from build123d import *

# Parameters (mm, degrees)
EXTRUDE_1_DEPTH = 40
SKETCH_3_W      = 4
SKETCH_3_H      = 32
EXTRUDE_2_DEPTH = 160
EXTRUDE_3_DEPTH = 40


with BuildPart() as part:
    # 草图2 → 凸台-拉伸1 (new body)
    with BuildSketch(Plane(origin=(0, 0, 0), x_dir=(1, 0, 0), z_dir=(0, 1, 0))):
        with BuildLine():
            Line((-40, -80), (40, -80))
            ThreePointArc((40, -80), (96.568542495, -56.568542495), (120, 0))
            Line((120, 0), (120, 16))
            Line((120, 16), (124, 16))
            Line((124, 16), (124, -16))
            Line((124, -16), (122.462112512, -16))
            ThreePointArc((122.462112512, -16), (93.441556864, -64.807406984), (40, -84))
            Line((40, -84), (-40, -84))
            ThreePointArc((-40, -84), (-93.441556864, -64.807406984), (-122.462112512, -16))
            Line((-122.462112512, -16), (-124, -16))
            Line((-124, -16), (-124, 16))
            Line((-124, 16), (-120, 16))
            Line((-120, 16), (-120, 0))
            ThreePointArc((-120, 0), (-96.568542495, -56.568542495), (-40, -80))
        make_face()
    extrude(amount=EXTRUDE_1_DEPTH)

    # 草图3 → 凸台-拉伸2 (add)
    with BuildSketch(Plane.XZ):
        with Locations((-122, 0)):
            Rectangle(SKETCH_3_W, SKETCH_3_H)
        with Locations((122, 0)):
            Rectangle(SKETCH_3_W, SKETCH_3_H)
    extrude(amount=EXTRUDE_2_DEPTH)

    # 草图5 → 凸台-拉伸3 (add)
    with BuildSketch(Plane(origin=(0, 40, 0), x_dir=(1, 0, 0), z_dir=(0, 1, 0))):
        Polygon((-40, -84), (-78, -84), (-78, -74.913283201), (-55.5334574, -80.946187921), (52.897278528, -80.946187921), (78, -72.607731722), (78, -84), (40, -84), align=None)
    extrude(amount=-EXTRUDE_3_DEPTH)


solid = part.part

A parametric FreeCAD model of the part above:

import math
import FreeCAD as App
import Part
import Sketcher
from FreeCAD import Vector

doc = App.newDocument("Part")
body = doc.addObject("PartDesign::Body", "Body")

# Sketch on XZ plane
sketch1 = body.newObject("Sketcher::SketchObject", "Sketch")
sketch1.AttachmentSupport = (doc.getObject("XZ_Plane"), [""])
sketch1.MapMode = "FlatFace"
sketch1.addGeometry([
    Part.LineSegment(Vector(40, 80, 0), Vector(-40, 80, 0)),  # 0
    Part.ArcOfCircle(Part.Circle(Vector(-40, 0, 0), Vector(0, 0, 1), 80), math.radians(90), math.radians(180)),  # 1
    Part.LineSegment(Vector(-120, 0, 0), Vector(-120, -16, 0)),  # 2
    Part.LineSegment(Vector(-120, -16, 0), Vector(-124, -16, 0)),  # 3
    Part.LineSegment(Vector(-124, -16, 0), Vector(-124, 16, 0)),  # 4
    Part.LineSegment(Vector(-124, 16, 0), Vector(-122.5, 16, 0)),  # 5
    Part.ArcOfCircle(Part.Circle(Vector(-40, 0, 0), Vector(0, 0, 1), 84), math.radians(90), math.radians(169)),  # 6
    Part.LineSegment(Vector(-40, 84, 0), Vector(40, 84, 0)),  # 7
    Part.ArcOfCircle(Part.Circle(Vector(40, 0, 0), Vector(0, 0, 1), 84), math.radians(11), math.radians(90)),  # 8
    Part.LineSegment(Vector(122.5, 16, 0), Vector(124, 16, 0)),  # 9
    Part.LineSegment(Vector(124, 16, 0), Vector(124, -16, 0)),  # 10
    Part.LineSegment(Vector(124, -16, 0), Vector(120, -16, 0)),  # 11
    Part.LineSegment(Vector(120, -16, 0), Vector(120, 0, 0)),  # 12
    Part.ArcOfCircle(Part.Circle(Vector(40, 0, 0), Vector(0, 0, 1), 80), math.radians(0), math.radians(90)),  # 13
], False)
sketch1.addConstraint([
    Sketcher.Constraint("Tangent", 0, 2, 1, 1),
    Sketcher.Constraint("Tangent", 1, 2, 2, 1),
    Sketcher.Constraint("Coincident", 2, 2, 3, 1),
    Sketcher.Constraint("Coincident", 3, 2, 4, 1),
    Sketcher.Constraint("Coincident", 4, 2, 5, 1),
    Sketcher.Constraint("Coincident", 5, 2, 6, 2),
    Sketcher.Constraint("Tangent", 6, 1, 7, 1),
    Sketcher.Constraint("Tangent", 7, 2, 8, 2),
    Sketcher.Constraint("Coincident", 8, 1, 9, 1),
    Sketcher.Constraint("Coincident", 9, 2, 10, 1),
    Sketcher.Constraint("Coincident", 10, 2, 11, 1),
    Sketcher.Constraint("Coincident", 11, 2, 12, 1),
    Sketcher.Constraint("Tangent", 12, 2, 13, 1),
    Sketcher.Constraint("Tangent", 13, 2, 0, 1),
    Sketcher.Constraint("Horizontal", 0),
    Sketcher.Constraint("Vertical", 2),
    Sketcher.Constraint("Horizontal", 3),
    Sketcher.Constraint("Vertical", 4),
    Sketcher.Constraint("Horizontal", 5),
    Sketcher.Constraint("Horizontal", 7),
    Sketcher.Constraint("Horizontal", 9),
    Sketcher.Constraint("Vertical", 10),
    Sketcher.Constraint("Horizontal", 11),
    Sketcher.Constraint("Vertical", 12),
    Sketcher.Constraint("Coincident", 6, 3, 1, 3),
    Sketcher.Constraint("Coincident", 13, 3, 8, 3),
    Sketcher.Constraint("Equal", 6, 8),
    Sketcher.Constraint("Symmetric", 1, 3, 8, 3, -1, 1),
    Sketcher.Constraint("Symmetric", 3, 2, 9, 2, -1, 1),
    Sketcher.Constraint("Horizontal", 5, 2, 8, 1),
    Sketcher.Constraint("Horizontal", 3, 2, 10, 2),
    Sketcher.Constraint("Radius", 1, 80.0),
    Sketcher.Constraint("Radius", 6, 84.0),
    Sketcher.Constraint("DistanceX", 0, 2, 0, 1, 80.0),
    Sketcher.Constraint("DistanceX", 3, 2, 3, 1, 4.0),
    Sketcher.Constraint("DistanceY", 2, 2, 2, 1, 16.0),
])
pad1 = body.newObject("PartDesign::Pad", "Pad")
pad1.Profile = sketch1
pad1.Length = 40
pad1.Reversed = True

# Sketch on XZ plane
sketch2 = body.newObject("Sketcher::SketchObject", "Sketch001")
sketch2.AttachmentSupport = (doc.getObject("XZ_Plane"), [""])
sketch2.MapMode = "FlatFace"
sketch2.addGeometry([
    Part.LineSegment(Vector(-124, 16, 0), Vector(-124, -16, 0)),  # 0
    Part.LineSegment(Vector(-124, -16, 0), Vector(-120, -16, 0)),  # 1
    Part.LineSegment(Vector(-120, -16, 0), Vector(-120, 16, 0)),  # 2
    Part.LineSegment(Vector(-120, 16, 0), Vector(-124, 16, 0)),  # 3
    Part.LineSegment(Vector(120, 16, 0), Vector(120, -16, 0)),  # 4
    Part.LineSegment(Vector(120, -16, 0), Vector(124, -16, 0)),  # 5
    Part.LineSegment(Vector(124, -16, 0), Vector(124, 16, 0)),  # 6
    Part.LineSegment(Vector(124, 16, 0), Vector(120, 16, 0)),  # 7
], False)
sketch2.addConstraint([
    Sketcher.Constraint("Coincident", 0, 2, 1, 1),
    Sketcher.Constraint("Coincident", 1, 2, 2, 1),
    Sketcher.Constraint("Coincident", 2, 2, 3, 1),
    Sketcher.Constraint("Coincident", 3, 2, 0, 1),
    Sketcher.Constraint("Coincident", 4, 2, 5, 1),
    Sketcher.Constraint("Coincident", 5, 2, 6, 1),
    Sketcher.Constraint("Coincident", 6, 2, 7, 1),
    Sketcher.Constraint("Coincident", 7, 2, 4, 1),
    Sketcher.Constraint("Vertical", 0),
    Sketcher.Constraint("Horizontal", 1),
    Sketcher.Constraint("Vertical", 2),
    Sketcher.Constraint("Horizontal", 3),
    Sketcher.Constraint("Vertical", 4),
    Sketcher.Constraint("Horizontal", 5),
    Sketcher.Constraint("Vertical", 6),
    Sketcher.Constraint("Horizontal", 7),
    Sketcher.Constraint("Symmetric", 2, 2, 4, 2, -1, 1),
    Sketcher.Constraint("Symmetric", 0, 2, 6, 2, -1, 1),
    Sketcher.Constraint("Horizontal", 1, 2, 4, 2),
    Sketcher.Constraint("DistanceX", 1, 1, 1, 2, 4.0),
    Sketcher.Constraint("DistanceY", 0, 2, 0, 1, 32.0),
    Sketcher.Constraint("DistanceX", 0, 2, -1, 1, 124.0),
])
pad2 = body.newObject("PartDesign::Pad", "Pad001")
pad2.Profile = sketch2
pad2.Length = 160

# Sketch on XZ plane
sketch3 = body.newObject("Sketcher::SketchObject", "Sketch002")
sketch3.AttachmentSupport = (doc.getObject("XZ_Plane"), [""])
sketch3.MapMode = "FlatFace"
sketch3.AttachmentOffset = App.Placement(Vector(0, 0, -40), App.Rotation())
sketch3.addGeometry([
    Part.LineSegment(Vector(-78, 84, 0), Vector(78, 84, 0)),  # 0
    Part.LineSegment(Vector(78, 84, 0), Vector(78, 73, 0)),  # 1
    Part.LineSegment(Vector(78, 73, 0), Vector(53, 81, 0)),  # 2
    Part.LineSegment(Vector(53, 81, 0), Vector(-56, 81, 0)),  # 3
    Part.LineSegment(Vector(-56, 81, 0), Vector(-78, 75, 0)),  # 4
    Part.LineSegment(Vector(-78, 75, 0), Vector(-78, 84, 0)),  # 5
], False)
sketch3.addConstraint([
    Sketcher.Constraint("Coincident", 0, 2, 1, 1),
    Sketcher.Constraint("Coincident", 1, 2, 2, 1),
    Sketcher.Constraint("Coincident", 2, 2, 3, 1),
    Sketcher.Constraint("Coincident", 3, 2, 4, 1),
    Sketcher.Constraint("Coincident", 4, 2, 5, 1),
    Sketcher.Constraint("Coincident", 5, 2, 0, 1),
    Sketcher.Constraint("Horizontal", 0),
    Sketcher.Constraint("Vertical", 1),
    Sketcher.Constraint("Horizontal", 3),
    Sketcher.Constraint("Vertical", 5),
    Sketcher.Constraint("DistanceX", 0, 1, 0, 2, 156.0),
    Sketcher.Constraint("DistanceX", -1, 1, 0, 2, 78.0),
    Sketcher.Constraint("DistanceY", -1, 1, 0, 2, 84.0),
    Sketcher.Constraint("Distance", 2, 26.451398),
    Sketcher.Constraint("DistanceY", 1, 2, 1, 1, 11.392268),
    Sketcher.Constraint("DistanceX", 3, 2, 3, 1, 108.430736),
    Sketcher.Constraint("DistanceY", 5, 1, 5, 2, 9.086717),
    Sketcher.Constraint("DistanceX", -1, 1, 2, 2, 52.897279),
])
pad3 = body.newObject("PartDesign::Pad", "Pad002")
pad3.Profile = sketch3
pad3.Length = 40

doc.recompute()
